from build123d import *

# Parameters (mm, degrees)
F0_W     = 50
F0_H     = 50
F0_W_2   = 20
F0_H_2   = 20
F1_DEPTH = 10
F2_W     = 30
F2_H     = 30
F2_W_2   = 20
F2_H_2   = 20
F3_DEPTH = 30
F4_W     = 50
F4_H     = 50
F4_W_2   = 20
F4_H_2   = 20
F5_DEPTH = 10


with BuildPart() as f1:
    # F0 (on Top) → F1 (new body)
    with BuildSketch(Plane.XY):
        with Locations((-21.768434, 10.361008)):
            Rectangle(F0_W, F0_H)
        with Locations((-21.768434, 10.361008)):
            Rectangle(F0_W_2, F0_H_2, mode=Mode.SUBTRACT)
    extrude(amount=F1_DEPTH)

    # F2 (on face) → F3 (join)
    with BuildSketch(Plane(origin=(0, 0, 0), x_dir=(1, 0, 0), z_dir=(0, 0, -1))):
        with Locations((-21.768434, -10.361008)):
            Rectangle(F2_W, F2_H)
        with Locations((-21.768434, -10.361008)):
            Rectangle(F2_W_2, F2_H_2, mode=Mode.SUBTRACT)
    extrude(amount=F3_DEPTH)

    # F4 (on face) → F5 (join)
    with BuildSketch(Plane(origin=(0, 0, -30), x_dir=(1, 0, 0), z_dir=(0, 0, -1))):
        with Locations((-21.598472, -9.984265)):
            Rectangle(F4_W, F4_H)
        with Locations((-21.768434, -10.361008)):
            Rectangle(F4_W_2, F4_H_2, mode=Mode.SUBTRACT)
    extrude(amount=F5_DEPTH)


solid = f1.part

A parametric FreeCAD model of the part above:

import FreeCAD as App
import Part
import Sketcher

V = App.Vector

doc = App.newDocument("Part")
body = doc.addObject("PartDesign::Body", "Body")

# Sketch on XY plane
sketch1 = body.newObject("Sketcher::SketchObject", "Sketch")
sketch1.AttachmentSupport = (doc.getObject("XY_Plane"), [""])
sketch1.MapMode = "FlatFace"
sketch1.addGeometry([
    Part.LineSegment(V(-46.768434, 35.361008, 0), V(-46.768434, -14.638992, 0)),  # 0
    Part.LineSegment(V(-46.768434, -14.638992, 0), V(3.231566, -14.638992, 0)),  # 1
    Part.LineSegment(V(3.231566, -14.638992, 0), V(3.231566, 35.361008, 0)),  # 2
    Part.LineSegment(V(3.231566, 35.361008, 0), V(-46.768434, 35.361008, 0)),  # 3
    Part.LineSegment(V(-11.768434, 0.361008, 0), V(-31.768434, 0.361008, 0)),  # 4
    Part.LineSegment(V(-31.768434, 0.361008, 0), V(-31.768434, 20.361008, 0)),  # 5
    Part.LineSegment(V(-31.768434, 20.361008, 0), V(-11.768434, 20.361008, 0)),  # 6
    Part.LineSegment(V(-11.768434, 20.361008, 0), V(-11.768434, 0.361008, 0)),  # 7
], False)
sketch1.addConstraint([
    Sketcher.Constraint("Coincident", 0, 2, 1, 1),
    Sketcher.Constraint("Coincident", 1, 2, 2, 1),
    Sketcher.Constraint("Coincident", 2, 2, 3, 1),
    Sketcher.Constraint("Coincident", 3, 2, 0, 1),
    Sketcher.Constraint("Coincident", 4, 2, 5, 1),
    Sketcher.Constraint("Coincident", 5, 2, 6, 1),
    Sketcher.Constraint("Coincident", 6, 2, 7, 1),
    Sketcher.Constraint("Coincident", 7, 2, 4, 1),
    Sketcher.Constraint("Vertical", 0),
    Sketcher.Constraint("Horizontal", 1),
    Sketcher.Constraint("Vertical", 2),
    Sketcher.Constraint("Horizontal", 3),
    Sketcher.Constraint("Horizontal", 4),
    Sketcher.Constraint("Vertical", 5),
    Sketcher.Constraint("Horizontal", 6),
    Sketcher.Constraint("Vertical", 7),
    Sketcher.Constraint("Equal", 3, 0),
    Sketcher.Constraint("Equal", 6, 5),
    Sketcher.Constraint("DistanceX", 1, 1, 1, 2, 50.0),
    Sketcher.Constraint("DistanceX", 4, 2, 4, 1, 20.0),
    Sketcher.Constraint("DistanceX", 0, 2, 4, 2, 15.0),
    Sketcher.Constraint("DistanceY", 0, 2, 4, 2, 15.0),
    Sketcher.Constraint("DistanceY", -1, 1, 5, 2, 20.361008),
    Sketcher.Constraint("DistanceX", 0, 2, -1, 1, 46.768434),
])
pad1 = body.newObject("PartDesign::Pad", "Pad")
pad1.Profile = sketch1
pad1.Length = 10

# Sketch on XY plane
sketch2 = body.newObject("Sketcher::SketchObject", "Sketch001")
sketch2.AttachmentSupport = (doc.getObject("XY_Plane"), [""])
sketch2.MapMode = "FlatFace"
sketch2.addGeometry([
    Part.LineSegment(V(-36.768434, -4.638992, 0), V(-36.768434, 25.361008, 0)),  # 0
    Part.LineSegment(V(-36.768434, 25.361008, 0), V(-6.768434, 25.361008, 0)),  # 1
    Part.LineSegment(V(-6.768434, 25.361008, 0), V(-6.768434, -4.638992, 0)),  # 2
    Part.LineSegment(V(-6.768434, -4.638992, 0), V(-36.768434, -4.638992, 0)),  # 3
    Part.LineSegment(V(-11.768434, 20.361008, 0), V(-31.768434, 20.361008, 0)),  # 4
    Part.LineSegment(V(-31.768434, 20.361008, 0), V(-31.768434, 0.361008, 0)),  # 5
    Part.LineSegment(V(-31.768434, 0.361008, 0), V(-11.768434, 0.361008, 0)),  # 6
    Part.LineSegment(V(-11.768434, 0.361008, 0), V(-11.768434, 20.361008, 0)),  # 7
], False)
sketch2.addConstraint([
    Sketcher.Constraint("Coincident", 0, 2, 1, 1),
    Sketcher.Constraint("Coincident", 1, 2, 2, 1),
    Sketcher.Constraint("Coincident", 2, 2, 3, 1),
    Sketcher.Constraint("Coincident", 3, 2, 0, 1),
    Sketcher.Constraint("Coincident", 4, 2, 5, 1),
    Sketcher.Constraint("Coincident", 5, 2, 6, 1),
    Sketcher.Constraint("Coincident", 6, 2, 7, 1),
    Sketcher.Constraint("Coincident", 7, 2, 4, 1),
    Sketcher.Constraint("Vertical", 0),
    Sketcher.Constraint("Horizontal", 1),
    Sketcher.Constraint("Vertical", 2),
    Sketcher.Constraint("Horizontal", 3),
    Sketcher.Constraint("Horizontal", 4),
    Sketcher.Constraint("Vertical", 5),
    Sketcher.Constraint("Horizontal", 6),
    Sketcher.Constraint("Vertical", 7),
    Sketcher.Constraint("Equal", 3, 0),
    Sketcher.Constraint("Equal", 6, 5),
    Sketcher.Constraint("DistanceX", 1, 1, 1, 2, 30.0),
    Sketcher.Constraint("DistanceX", 4, 2, 4, 1, 20.0),
    Sketcher.Constraint("DistanceX", 0, 2, 4, 2, 5.0),
    Sketcher.Constraint("DistanceY", 4, 2, 0, 2, 5.0),
    Sketcher.Constraint("DistanceY", -1, 1, 0, 2, 25.361008),
    Sketcher.Constraint("DistanceX", 0, 2, -1, 1, 36.768434),
])
pad2 = body.newObject("PartDesign::Pad", "Pad001")
pad2.Profile = sketch2
pad2.Length = 30
pad2.Reversed = True

# Sketch on XY plane
sketch3 = body.newObject("Sketcher::SketchObject", "Sketch002")
sketch3.AttachmentSupport = (doc.getObject("XY_Plane"), [""])
sketch3.MapMode = "FlatFace"
sketch3.AttachmentOffset = App.Placement(V(0, 0, -30), App.Rotation())
sketch3.addGeometry([
    Part.LineSegment(V(-46.598472, -15.015735, 0), V(-46.598472, 34.984265, 0)),  # 0
    Part.LineSegment(V(-46.598472, 34.984265, 0), V(3.401528, 34.984265, 0)),  # 1
    Part.LineSegment(V(3.401528, 34.984265, 0), V(3.401528, -15.015735, 0)),  # 2
    Part.LineSegment(V(3.401528, -15.015735, 0), V(-46.598472, -15.015735, 0)),  # 3
    Part.LineSegment(V(-11.768434, 20.361008, 0), V(-31.768434, 20.361008, 0)),  # 4
    Part.LineSegment(V(-31.768434, 20.361008, 0), V(-31.768434, 0.361008, 0)),  # 5
    Part.LineSegment(V(-31.768434, 0.361008, 0), V(-11.768434, 0.361008, 0)),  # 6
    Part.LineSegment(V(-11.768434, 0.361008, 0), V(-11.768434, 20.361008, 0)),  # 7
], False)
sketch3.addConstraint([
    Sketcher.Constraint("Coincident", 0, 2, 1, 1),
    Sketcher.Constraint("Coincident", 1, 2, 2, 1),
    Sketcher.Constraint("Coincident", 2, 2, 3, 1),
    Sketcher.Constraint("Coincident", 3, 2, 0, 1),
    Sketcher.Constraint("Coincident", 4, 2, 5, 1),
    Sketcher.Constraint("Coincident", 5, 2, 6, 1),
    Sketcher.Constraint("Coincident", 6, 2, 7, 1),
    Sketcher.Constraint("Coincident", 7, 2, 4, 1),
    Sketcher.Constraint("Vertical", 0),
    Sketcher.Constraint("Horizontal", 1),
    Sketcher.Constraint("Vertical", 2),
    Sketcher.Constraint("Horizontal", 3),
    Sketcher.Constraint("Horizontal", 4),
    Sketcher.Constraint("Vertical", 5),
    Sketcher.Constraint("Horizontal", 6),
    Sketcher.Constraint("Vertical", 7),
    Sketcher.Constraint("Equal", 3, 0),
    Sketcher.Constraint("Equal", 6, 5),
    Sketcher.Constraint("DistanceX", 1, 1, 1, 2, 50.0),
    Sketcher.Constraint("DistanceX", 4, 2, 4, 1, 20.0),
    Sketcher.Constraint("DistanceY", -1, 1, 4, 2, 20.361008),
    Sketcher.Constraint("DistanceX", 0, 2, 4, 2, 14.830038),
    Sketcher.Constraint("DistanceX", 0, 2, -1, 1, 46.598472),
    Sketcher.Constraint("DistanceY", -1, 1, 0, 2, 34.984265),
])
pad3 = body.newObject("PartDesign::Pad", "Pad002")
pad3.Profile = sketch3
pad3.Length = 10
pad3.Reversed = True

doc.recompute()
